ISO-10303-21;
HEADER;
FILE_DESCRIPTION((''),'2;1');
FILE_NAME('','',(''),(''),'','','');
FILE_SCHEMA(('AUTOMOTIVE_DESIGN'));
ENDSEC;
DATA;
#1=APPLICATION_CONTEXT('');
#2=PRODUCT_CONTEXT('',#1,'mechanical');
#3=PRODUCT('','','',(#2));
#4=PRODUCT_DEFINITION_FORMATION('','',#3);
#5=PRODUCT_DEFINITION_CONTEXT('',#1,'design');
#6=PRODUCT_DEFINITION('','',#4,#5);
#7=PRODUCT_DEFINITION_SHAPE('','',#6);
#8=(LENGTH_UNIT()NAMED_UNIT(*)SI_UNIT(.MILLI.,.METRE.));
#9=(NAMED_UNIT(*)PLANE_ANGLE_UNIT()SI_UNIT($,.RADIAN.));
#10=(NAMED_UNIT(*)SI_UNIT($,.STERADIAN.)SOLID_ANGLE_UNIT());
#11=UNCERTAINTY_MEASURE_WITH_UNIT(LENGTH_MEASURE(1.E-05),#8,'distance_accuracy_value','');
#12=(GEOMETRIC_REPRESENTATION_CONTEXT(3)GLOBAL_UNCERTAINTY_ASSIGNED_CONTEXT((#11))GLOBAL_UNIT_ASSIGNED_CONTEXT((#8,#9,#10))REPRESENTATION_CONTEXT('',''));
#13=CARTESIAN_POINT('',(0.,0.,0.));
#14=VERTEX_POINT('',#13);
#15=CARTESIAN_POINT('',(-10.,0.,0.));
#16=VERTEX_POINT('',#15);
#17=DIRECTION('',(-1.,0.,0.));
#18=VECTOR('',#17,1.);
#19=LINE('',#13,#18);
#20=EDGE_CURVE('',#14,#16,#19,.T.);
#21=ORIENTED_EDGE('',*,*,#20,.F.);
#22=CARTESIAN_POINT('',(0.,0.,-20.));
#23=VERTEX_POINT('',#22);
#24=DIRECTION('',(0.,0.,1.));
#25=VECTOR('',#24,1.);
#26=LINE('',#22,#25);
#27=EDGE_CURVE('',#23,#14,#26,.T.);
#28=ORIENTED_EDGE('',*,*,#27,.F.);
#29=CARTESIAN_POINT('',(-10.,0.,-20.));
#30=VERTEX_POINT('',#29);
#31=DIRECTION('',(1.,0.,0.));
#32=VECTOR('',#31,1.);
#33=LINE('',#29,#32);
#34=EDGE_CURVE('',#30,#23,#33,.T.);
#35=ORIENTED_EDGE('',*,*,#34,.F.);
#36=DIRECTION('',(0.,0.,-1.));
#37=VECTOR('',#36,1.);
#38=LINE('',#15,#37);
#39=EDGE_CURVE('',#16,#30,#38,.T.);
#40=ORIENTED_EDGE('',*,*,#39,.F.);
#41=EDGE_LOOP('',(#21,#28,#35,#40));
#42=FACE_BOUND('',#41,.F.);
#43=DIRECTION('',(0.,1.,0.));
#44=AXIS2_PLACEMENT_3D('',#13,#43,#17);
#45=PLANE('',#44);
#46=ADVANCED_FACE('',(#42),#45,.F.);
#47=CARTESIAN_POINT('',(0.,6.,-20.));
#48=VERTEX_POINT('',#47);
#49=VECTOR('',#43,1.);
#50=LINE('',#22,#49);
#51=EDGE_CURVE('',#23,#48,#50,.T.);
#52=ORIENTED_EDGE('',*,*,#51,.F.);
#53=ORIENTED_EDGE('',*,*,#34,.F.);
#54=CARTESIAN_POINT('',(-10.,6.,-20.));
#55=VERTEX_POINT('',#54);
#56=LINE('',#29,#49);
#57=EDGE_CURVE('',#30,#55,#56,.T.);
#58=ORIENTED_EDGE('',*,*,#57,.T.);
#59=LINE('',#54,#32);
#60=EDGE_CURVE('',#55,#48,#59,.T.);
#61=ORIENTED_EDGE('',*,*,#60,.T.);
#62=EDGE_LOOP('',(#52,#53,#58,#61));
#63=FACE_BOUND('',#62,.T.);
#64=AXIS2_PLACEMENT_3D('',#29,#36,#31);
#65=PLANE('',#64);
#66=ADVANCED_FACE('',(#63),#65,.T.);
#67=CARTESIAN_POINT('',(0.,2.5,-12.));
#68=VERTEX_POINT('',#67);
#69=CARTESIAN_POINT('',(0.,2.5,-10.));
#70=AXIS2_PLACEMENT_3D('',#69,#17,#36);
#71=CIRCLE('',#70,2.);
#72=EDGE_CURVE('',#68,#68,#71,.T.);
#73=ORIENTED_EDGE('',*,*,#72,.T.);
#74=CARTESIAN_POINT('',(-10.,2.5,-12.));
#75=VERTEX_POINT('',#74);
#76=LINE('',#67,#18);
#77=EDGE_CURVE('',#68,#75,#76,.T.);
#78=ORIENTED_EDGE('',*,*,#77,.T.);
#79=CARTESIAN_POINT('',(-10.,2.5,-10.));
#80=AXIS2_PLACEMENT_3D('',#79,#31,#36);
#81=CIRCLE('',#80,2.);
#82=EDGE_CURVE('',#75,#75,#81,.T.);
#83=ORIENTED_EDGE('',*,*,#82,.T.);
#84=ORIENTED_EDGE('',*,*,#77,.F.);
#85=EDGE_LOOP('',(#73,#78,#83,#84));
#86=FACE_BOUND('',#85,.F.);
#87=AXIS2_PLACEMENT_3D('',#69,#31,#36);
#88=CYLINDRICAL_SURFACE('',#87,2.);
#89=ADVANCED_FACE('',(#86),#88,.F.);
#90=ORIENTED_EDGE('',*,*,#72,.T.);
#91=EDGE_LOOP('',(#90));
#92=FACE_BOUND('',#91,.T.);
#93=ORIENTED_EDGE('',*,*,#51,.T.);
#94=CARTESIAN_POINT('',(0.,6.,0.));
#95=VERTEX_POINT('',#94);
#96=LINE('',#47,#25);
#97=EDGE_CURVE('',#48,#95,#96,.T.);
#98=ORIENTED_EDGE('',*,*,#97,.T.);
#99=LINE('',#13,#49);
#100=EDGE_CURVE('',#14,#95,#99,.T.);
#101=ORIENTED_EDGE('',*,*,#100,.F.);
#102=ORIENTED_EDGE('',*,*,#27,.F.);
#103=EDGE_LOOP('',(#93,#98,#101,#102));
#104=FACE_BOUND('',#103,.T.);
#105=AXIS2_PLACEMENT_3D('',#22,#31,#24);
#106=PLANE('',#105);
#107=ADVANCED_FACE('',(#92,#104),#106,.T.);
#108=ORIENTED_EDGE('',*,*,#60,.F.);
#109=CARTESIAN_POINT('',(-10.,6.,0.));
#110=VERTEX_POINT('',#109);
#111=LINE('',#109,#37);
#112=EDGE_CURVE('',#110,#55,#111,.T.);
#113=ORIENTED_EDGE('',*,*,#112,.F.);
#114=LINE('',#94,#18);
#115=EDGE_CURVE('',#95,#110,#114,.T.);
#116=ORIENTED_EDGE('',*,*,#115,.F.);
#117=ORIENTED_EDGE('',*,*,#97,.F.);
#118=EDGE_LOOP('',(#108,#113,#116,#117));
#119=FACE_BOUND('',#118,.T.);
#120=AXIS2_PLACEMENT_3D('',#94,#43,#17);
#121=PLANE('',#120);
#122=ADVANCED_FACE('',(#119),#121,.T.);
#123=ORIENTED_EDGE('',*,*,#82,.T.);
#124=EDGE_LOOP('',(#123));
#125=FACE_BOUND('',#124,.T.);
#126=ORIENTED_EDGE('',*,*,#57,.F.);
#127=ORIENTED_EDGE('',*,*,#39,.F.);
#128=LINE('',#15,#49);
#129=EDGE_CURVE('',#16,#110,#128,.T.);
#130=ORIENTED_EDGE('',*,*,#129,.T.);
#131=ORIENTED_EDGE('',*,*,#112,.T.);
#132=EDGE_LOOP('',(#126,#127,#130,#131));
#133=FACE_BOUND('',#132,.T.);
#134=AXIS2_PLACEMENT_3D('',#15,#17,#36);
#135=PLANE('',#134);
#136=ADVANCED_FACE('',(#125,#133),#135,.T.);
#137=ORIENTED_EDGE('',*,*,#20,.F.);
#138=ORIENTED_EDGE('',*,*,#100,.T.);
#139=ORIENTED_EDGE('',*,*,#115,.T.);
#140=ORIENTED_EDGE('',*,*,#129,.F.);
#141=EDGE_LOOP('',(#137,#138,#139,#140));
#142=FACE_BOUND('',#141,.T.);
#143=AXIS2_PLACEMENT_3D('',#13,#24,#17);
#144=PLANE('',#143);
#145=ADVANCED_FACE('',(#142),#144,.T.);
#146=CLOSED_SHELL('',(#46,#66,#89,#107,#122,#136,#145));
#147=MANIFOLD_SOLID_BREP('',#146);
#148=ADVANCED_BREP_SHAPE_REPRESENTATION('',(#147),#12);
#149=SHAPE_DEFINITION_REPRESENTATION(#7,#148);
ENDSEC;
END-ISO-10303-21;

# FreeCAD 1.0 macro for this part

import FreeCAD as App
import Part
import Sketcher
from FreeCAD import Vector


def add_polygon(sketch, points):
    """Adds a closed chain of lines whose ends are joined by coincident constraints."""
    first, n = sketch.GeometryCount, len(points)
    for a, b in zip(points, points[1:] + points[:1]):
        sketch.addGeometry(Part.LineSegment(App.Vector(*a, 0), App.Vector(*b, 0)), False)
    for i in range(n):
        sketch.addConstraint(Sketcher.Constraint("Coincident", first + i, 2, first + (i + 1) % n, 1))

doc = App.newDocument("Part")
params = doc.addObject("Spreadsheet::Sheet", "Params")
for row, (alias, value) in enumerate([
    ("sketch1_width", "10 mm"),
    ("sketch1_height", "20 mm"),
    ("pad1_length", "6 mm"),
    ("sketch2_diameter", "4 mm"),
    ("pocket1_length", "17 mm"),
], start=1):
    params.set(f"A{row}", alias)
    params.set(f"B{row}", "=" + value)
    params.setAlias(f"B{row}", alias)

body = doc.addObject("PartDesign::Body", "Body")

# Sketch on XZ plane
sketch1 = body.newObject("Sketcher::SketchObject", "Sketch")
sketch1.AttachmentSupport = (doc.getObject("XZ_Plane"), [""])
sketch1.MapMode = "FlatFace"
add_polygon(sketch1, [(-10, 0), (0, 0), (0, -20), (-10, -20)])  # lines 0-3
sketch1.addConstraint([
    Sketcher.Constraint("Horizontal", 0),
    Sketcher.Constraint("Vertical", 1),
    Sketcher.Constraint("Horizontal", 2),
    Sketcher.Constraint("Vertical", 3),
    Sketcher.Constraint("Coincident", 0, 2, -1, 1),
    Sketcher.Constraint("DistanceX", 0, 1, 0, 2, 10.0),
    Sketcher.Constraint("DistanceY", 1, 2, 1, 1, 20.0),
])
sketch1.setExpression("Constraints[9]", "Params.sketch1_width")
sketch1.setExpression("Constraints[10]", "Params.sketch1_height")
pad1 = body.newObject("PartDesign::Pad", "Pad")
pad1.Profile = sketch1
pad1.setExpression("Length", "Params.pad1_length")
pad1.Reversed = True

# Sketch on YZ plane
sketch2 = body.newObject("Sketcher::SketchObject", "Sketch001")
sketch2.AttachmentSupport = (doc.getObject("YZ_Plane"), [""])
sketch2.MapMode = "FlatFace"
sketch2.addGeometry(Part.Circle(Vector(2.5, -10, 0), Vector(0, 0, 1), 2), False)
sketch2.addConstraint([
    Sketcher.Constraint("Diameter", 0, 4.0),
    Sketcher.Constraint("DistanceY", 0, 3, -1, 1, 10.0),
    Sketcher.Constraint("DistanceX", -1, 1, 0, 3, 2.5),
])
sketch2.setExpression("Constraints[0]", "Params.sketch2_diameter")
pocket1 = body.newObject("PartDesign::Pocket", "Pocket")
pocket1.Profile = sketch2
pocket1.setExpression("Length", "Params.pocket1_length")

doc.recompute()
